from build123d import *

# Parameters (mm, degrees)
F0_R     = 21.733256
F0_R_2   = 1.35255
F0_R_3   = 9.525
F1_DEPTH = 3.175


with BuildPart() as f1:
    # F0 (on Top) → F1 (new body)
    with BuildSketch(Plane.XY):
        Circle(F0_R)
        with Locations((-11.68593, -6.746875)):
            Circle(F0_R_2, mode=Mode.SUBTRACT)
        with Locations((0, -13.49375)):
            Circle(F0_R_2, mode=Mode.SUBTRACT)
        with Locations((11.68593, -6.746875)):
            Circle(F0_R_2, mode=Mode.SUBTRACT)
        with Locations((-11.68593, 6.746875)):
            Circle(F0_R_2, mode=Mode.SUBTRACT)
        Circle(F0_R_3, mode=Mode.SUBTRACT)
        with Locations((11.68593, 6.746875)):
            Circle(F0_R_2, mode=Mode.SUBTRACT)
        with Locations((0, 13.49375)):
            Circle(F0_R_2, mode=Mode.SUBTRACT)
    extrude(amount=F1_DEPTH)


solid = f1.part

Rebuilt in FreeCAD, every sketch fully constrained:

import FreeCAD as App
import Part
import Sketcher
Q = App.Units.Quantity

doc = App.newDocument("Part")
body = doc.addObject("PartDesign::Body", "Body")

sketch1 = body.newObject("Sketcher::SketchObject", "Sketch")
sketch1.AttachmentSupport = (doc.getObject("XY_Plane"), [""])
sketch1.MapMode = "FlatFace"
sketch1.addGeometry([
    Part.Circle(App.Vector(0, 0, 0), App.Vector(0, 0, 1), 21.7),
    Part.Circle(App.Vector(-11.7, -6.7, 0), App.Vector(0, 0, 1), 1.4),
    Part.Circle(App.Vector(0, -13.5, 0), App.Vector(0, 0, 1), 1.4),
    Part.Circle(App.Vector(11.7, -6.7, 0), App.Vector(0, 0, 1), 1.4),
    Part.Circle(App.Vector(-11.7, 6.7, 0), App.Vector(0, 0, 1), 1.4),
    Part.Circle(App.Vector(0, 0, 0), App.Vector(0, 0, 1), 9.5),
    Part.Circle(App.Vector(11.7, 6.7, 0), App.Vector(0, 0, 1), 1.4),
    Part.Circle(App.Vector(0, 13.5, 0), App.Vector(0, 0, 1), 1.4),
], False)
sketch1.addConstraint([
    Sketcher.Constraint("Coincident", 0, 3, -1, 1),
    Sketcher.Constraint("Coincident", 5, 3, -1, 1),
    Sketcher.Constraint("Equal", 1, 2),
    Sketcher.Constraint("Equal", 2, 3),
    Sketcher.Constraint("Equal", 3, 4),
    Sketcher.Constraint("Equal", 4, 6),
    Sketcher.Constraint("Equal", 6, 7),
    Sketcher.Constraint("Symmetric", 3, 3, 4, 3, -1, 1),
    Sketcher.Constraint("Symmetric", 1, 3, 6, 3, -1, 1),
    Sketcher.Constraint("Symmetric", 2, 3, 7, 3, -1, 1),
    Sketcher.Constraint("Symmetric", 1, 3, 3, 3, -2),
    Sketcher.Constraint("PointOnObject", 2, 3, -2),
    Sketcher.Constraint("Diameter", 5, Q("0.75 in")),
    Sketcher.Constraint("Diameter", 1, Q("0.1065 in")),
    Sketcher.Constraint("DistanceY", 1, 3, -1, 1, Q("0.265625 in")),
    Sketcher.Constraint("DistanceY", 2, 3, -1, 1, Q("0.53125 in")),
    Sketcher.Constraint("Diameter", 0, Q("43.466512 mm")),
    Sketcher.Constraint("DistanceX", 1, 3, -1, 1, Q("11.68593 mm")),
])
pad1 = body.newObject("PartDesign::Pad", "Pad")
pad1.Profile = sketch1
pad1.Length = Q("0.125 in")

doc.recompute()
